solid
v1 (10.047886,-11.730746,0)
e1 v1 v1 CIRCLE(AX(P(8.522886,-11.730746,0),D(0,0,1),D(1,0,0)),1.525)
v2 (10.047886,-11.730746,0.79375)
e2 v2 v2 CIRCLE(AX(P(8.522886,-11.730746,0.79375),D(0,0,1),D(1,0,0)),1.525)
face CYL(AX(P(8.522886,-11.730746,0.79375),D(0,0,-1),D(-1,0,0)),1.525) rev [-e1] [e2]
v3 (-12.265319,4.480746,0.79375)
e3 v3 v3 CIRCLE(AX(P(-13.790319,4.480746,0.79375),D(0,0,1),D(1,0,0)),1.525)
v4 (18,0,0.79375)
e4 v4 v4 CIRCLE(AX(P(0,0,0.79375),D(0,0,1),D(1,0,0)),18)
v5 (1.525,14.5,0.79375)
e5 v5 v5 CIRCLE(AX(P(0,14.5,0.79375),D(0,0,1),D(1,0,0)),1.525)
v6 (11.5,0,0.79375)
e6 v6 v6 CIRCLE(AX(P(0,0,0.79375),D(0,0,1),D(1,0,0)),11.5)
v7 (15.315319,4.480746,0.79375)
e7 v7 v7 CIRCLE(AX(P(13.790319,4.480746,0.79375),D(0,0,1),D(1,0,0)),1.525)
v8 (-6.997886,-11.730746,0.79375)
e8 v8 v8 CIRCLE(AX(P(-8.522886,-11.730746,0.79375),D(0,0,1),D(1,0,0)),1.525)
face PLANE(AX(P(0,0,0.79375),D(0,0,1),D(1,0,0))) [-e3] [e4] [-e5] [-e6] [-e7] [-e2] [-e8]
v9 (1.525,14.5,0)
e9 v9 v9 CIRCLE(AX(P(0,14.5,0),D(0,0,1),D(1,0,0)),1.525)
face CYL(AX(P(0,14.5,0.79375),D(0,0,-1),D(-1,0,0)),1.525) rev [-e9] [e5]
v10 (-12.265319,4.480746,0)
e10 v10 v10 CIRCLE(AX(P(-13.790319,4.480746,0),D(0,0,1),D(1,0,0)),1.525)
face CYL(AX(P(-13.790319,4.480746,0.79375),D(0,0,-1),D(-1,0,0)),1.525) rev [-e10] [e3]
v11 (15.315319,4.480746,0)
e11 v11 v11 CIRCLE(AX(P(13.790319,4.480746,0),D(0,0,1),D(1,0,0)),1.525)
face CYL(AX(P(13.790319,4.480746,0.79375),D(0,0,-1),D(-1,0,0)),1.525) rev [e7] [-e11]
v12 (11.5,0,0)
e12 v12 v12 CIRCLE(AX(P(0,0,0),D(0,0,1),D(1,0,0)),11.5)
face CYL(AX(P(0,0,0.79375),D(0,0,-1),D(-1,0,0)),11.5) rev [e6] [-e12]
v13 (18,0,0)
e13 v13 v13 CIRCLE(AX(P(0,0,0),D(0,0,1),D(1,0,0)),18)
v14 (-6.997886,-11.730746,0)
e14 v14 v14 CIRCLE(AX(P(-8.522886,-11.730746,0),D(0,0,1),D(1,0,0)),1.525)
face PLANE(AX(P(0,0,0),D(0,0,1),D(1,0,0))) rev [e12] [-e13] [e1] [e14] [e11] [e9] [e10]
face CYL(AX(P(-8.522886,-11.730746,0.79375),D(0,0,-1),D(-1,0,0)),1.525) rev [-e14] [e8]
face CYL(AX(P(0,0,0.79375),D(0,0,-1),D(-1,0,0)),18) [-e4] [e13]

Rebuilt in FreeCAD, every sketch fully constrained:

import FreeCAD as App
import Part
import Sketcher
Q = App.Units.Quantity

doc = App.newDocument("Part")
body = doc.addObject("PartDesign::Body", "Body")

sketch1 = body.newObject("Sketcher::SketchObject", "Sketch")
sketch1.AttachmentSupport = (doc.getObject("XY_Plane"), [""])
sketch1.MapMode = "FlatFace"
sketch1.addGeometry(Part.Circle(App.Vector(0, 0, 0), App.Vector(0, 0, 1), 18), False)
sketch1.addGeometry(Part.Circle(App.Vector(-8.5, -11.7, 0), App.Vector(0, 0, 1), 1.5), False)
sketch1.addGeometry(Part.Circle(App.Vector(8.5, -11.7, 0), App.Vector(0, 0, 1), 1.5), False)
sketch1.addGeometry(Part.Circle(App.Vector(0, 0, 0), App.Vector(0, 0, 1), 11.5), False)
sketch1.addGeometry(Part.Circle(App.Vector(-13.8, 4.5, 0), App.Vector(0, 0, 1), 1.5), False)
sketch1.addGeometry(Part.Circle(App.Vector(13.8, 4.5, 0), App.Vector(0, 0, 1), 1.5), False)
sketch1.addGeometry(Part.Circle(App.Vector(0, 14.5, 0), App.Vector(0, 0, 1), 1.5), False)
sketch1.addConstraint(Sketcher.Constraint("Coincident", 0, 3, -1, 1))
sketch1.addConstraint(Sketcher.Constraint("Coincident", 3, 3, -1, 1))
sketch1.addConstraint(Sketcher.Constraint("Equal", 1, 2))
sketch1.addConstraint(Sketcher.Constraint("Equal", 2, 4))
sketch1.addConstraint(Sketcher.Constraint("Equal", 4, 5))
sketch1.addConstraint(Sketcher.Constraint("Equal", 5, 6))
sketch1.addConstraint(Sketcher.Constraint("Symmetric", 1, 3, 2, 3, -2))
sketch1.addConstraint(Sketcher.Constraint("Symmetric", 4, 3, 5, 3, -2))
sketch1.addConstraint(Sketcher.Constraint("PointOnObject", 6, 3, -2))
sketch1.addConstraint(Sketcher.Constraint("Diameter", 0, Q("36 mm")))
sketch1.addConstraint(Sketcher.Constraint("Diameter", 3, Q("23 mm")))
sketch1.addConstraint(Sketcher.Constraint("Diameter", 1, Q("3.05 mm")))
sketch1.addConstraint(Sketcher.Constraint("DistanceY", -1, 1, 6, 3, Q("14.5 mm")))
sketch1.addConstraint(Sketcher.Constraint("DistanceX", 4, 3, -1, 1, Q("13.790319 mm")))
sketch1.addConstraint(Sketcher.Constraint("DistanceX", 1, 3, -1, 1, Q("8.522886 mm")))
sketch1.addConstraint(Sketcher.Constraint("DistanceY", 1, 3, -1, 1, Q("11.730746 mm")))
sketch1.addConstraint(Sketcher.Constraint("DistanceY", -1, 1, 4, 3, Q("4.480746 mm")))
pad1 = body.newObject("PartDesign::Pad", "Pad")
pad1.Profile = sketch1
pad1.Length = 0.79375

doc.recompute()
